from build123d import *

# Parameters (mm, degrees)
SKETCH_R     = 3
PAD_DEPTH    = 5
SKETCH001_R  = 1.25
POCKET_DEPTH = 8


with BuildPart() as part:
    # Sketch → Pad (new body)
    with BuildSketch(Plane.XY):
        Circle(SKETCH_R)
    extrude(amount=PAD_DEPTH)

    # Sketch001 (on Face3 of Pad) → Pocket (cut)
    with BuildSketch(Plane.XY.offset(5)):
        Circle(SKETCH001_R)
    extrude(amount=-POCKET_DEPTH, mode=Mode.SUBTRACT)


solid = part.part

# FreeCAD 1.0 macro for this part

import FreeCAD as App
import Part
import Sketcher
Q = App.Units.Quantity

doc = App.newDocument("Part")
body = doc.addObject("PartDesign::Body", "Body")

# Sketch on XY plane
sketch1 = body.newObject("Sketcher::SketchObject", "Sketch")
sketch1.AttachmentSupport = (doc.getObject("XY_Plane"), [""])
sketch1.MapMode = "FlatFace"
sketch1.addGeometry(Part.Circle(App.Vector(0, 0, 0), App.Vector(0, 0, 1), 3), False)
sketch1.addConstraint([
    Sketcher.Constraint("Coincident", 0, 3, -1, 1),
    Sketcher.Constraint("Diameter", 0, Q("6 mm")),
])
pad1 = body.newObject("PartDesign::Pad", "Pad")
pad1.Profile = sketch1
pad1.Length = 5

# Sketch on XY plane
sketch2 = body.newObject("Sketcher::SketchObject", "Sketch001")
sketch2.AttachmentSupport = (doc.getObject("XY_Plane"), [""])
sketch2.MapMode = "FlatFace"
sketch2.AttachmentOffset = App.Placement(App.Vector(0, 0, 5), App.Rotation())
sketch2.addGeometry(Part.Circle(App.Vector(0, 0, 0), App.Vector(0, 0, 1), 1.2), False)
sketch2.addConstraint([
    Sketcher.Constraint("Coincident", 0, 3, -1, 1),
    Sketcher.Constraint("Diameter", 0, Q("2.5 mm")),
])
pocket1 = body.newObject("PartDesign::Pocket", "Pocket")
pocket1.Profile = sketch2
pocket1.Length = 8

doc.recompute()
